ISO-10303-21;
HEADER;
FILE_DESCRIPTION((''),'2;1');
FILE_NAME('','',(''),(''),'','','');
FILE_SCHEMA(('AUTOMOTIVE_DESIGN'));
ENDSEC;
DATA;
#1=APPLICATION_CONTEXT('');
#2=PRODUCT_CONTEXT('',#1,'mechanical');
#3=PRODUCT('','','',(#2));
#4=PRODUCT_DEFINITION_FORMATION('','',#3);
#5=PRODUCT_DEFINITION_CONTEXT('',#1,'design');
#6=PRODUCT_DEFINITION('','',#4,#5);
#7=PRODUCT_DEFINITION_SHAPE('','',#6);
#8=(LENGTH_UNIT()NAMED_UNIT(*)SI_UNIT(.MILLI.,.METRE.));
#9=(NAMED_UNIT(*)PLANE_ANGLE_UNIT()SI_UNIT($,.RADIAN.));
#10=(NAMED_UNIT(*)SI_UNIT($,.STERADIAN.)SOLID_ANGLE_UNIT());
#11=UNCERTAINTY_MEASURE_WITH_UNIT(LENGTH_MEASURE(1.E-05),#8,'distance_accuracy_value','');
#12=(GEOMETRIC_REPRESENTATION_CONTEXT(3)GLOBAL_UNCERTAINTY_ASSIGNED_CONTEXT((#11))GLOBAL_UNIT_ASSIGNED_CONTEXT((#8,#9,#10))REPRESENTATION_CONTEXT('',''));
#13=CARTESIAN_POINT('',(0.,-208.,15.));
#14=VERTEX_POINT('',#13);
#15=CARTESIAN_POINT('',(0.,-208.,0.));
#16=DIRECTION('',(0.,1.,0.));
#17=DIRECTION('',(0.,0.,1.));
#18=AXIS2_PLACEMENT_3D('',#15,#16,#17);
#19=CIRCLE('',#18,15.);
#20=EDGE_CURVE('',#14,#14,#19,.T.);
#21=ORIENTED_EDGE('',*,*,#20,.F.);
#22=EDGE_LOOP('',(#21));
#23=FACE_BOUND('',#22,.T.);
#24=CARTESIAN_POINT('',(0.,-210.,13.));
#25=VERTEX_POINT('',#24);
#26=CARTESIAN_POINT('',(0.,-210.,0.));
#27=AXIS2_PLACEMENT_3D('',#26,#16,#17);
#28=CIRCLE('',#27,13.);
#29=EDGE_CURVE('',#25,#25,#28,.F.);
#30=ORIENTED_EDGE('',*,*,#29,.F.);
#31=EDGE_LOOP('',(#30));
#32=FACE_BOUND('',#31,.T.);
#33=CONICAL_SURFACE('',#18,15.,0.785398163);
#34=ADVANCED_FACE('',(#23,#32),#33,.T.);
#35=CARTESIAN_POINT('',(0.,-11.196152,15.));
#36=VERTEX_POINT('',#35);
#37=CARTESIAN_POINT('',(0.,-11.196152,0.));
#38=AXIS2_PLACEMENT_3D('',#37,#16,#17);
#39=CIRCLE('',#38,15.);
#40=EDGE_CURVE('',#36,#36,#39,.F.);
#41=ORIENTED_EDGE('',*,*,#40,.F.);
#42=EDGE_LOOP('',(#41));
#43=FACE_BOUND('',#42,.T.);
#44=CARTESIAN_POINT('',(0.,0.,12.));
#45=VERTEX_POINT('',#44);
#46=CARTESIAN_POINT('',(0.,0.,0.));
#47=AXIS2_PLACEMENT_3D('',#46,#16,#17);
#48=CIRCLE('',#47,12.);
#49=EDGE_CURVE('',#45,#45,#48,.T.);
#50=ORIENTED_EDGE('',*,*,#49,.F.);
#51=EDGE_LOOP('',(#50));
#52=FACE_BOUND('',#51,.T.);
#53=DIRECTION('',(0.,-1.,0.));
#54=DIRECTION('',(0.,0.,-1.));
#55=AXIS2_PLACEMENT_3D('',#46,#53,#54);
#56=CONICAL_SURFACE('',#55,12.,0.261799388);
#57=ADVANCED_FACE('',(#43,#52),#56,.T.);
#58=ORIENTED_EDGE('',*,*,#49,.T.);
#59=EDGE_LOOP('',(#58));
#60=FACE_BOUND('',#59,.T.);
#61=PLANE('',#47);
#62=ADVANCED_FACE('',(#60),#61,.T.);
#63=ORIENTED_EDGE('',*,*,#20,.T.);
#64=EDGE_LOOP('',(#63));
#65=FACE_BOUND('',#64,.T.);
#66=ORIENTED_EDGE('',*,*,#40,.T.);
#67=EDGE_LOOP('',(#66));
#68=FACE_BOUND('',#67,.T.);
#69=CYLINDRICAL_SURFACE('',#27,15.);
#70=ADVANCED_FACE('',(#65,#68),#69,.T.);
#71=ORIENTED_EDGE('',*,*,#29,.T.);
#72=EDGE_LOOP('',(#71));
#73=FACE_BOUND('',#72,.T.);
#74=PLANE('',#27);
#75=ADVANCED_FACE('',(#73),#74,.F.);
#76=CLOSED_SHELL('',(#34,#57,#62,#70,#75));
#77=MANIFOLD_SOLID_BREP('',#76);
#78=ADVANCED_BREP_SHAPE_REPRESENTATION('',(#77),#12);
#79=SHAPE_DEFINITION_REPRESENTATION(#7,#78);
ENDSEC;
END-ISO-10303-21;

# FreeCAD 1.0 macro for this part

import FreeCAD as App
import Part
import Sketcher


def edges_at(feature, points):
    """Names of the edges that pass closest to the given points."""
    edges = feature.Shape.Edges
    near = lambda p: min(range(len(edges)), key=lambda i: edges[i].distToShape(Part.Vertex(*p))[0])
    return sorted({f"Edge{near(p) + 1}" for p in points})

doc = App.newDocument("Part")
params = doc.addObject("Spreadsheet::Sheet", "Params")
for row, (alias, value) in enumerate([
    ("sketch1_diameter", "30 mm"),
    ("pad1_length", "210 mm"),
    ("chamfer_size", "2 mm"),
    ("chamfer2_size", "3 mm"),
    ("chamfer2_size2", "11.196152 mm"),
], start=1):
    params.set(f"A{row}", alias)
    params.set(f"B{row}", "=" + value)
    params.setAlias(f"B{row}", alias)

body = doc.addObject("PartDesign::Body", "Body")

# Sketch on XZ plane
sketch1 = body.newObject("Sketcher::SketchObject", "Sketch")
sketch1.AttachmentSupport = (doc.getObject("XZ_Plane"), [""])
sketch1.MapMode = "FlatFace"
sketch1.addGeometry(Part.Circle(App.Vector(0, 0, 0), App.Vector(0, 0, 1), 15), False)
sketch1.addConstraint(Sketcher.Constraint("Coincident", 0, 3, -1, 1))
sketch1.addConstraint(Sketcher.Constraint("Diameter", 0, 30.0))
sketch1.setExpression("Constraints[1]", "Params.sketch1_diameter")
pad1 = body.newObject("PartDesign::Pad", "Pad")
pad1.Profile = sketch1
pad1.setExpression("Length", "Params.pad1_length")
doc.recompute()

chamfer = body.newObject("PartDesign::Chamfer", "Chamfer")
chamfer.Base = (pad1, edges_at(pad1, [(0, -210, -15)]))
chamfer.setExpression("Size", "Params.chamfer_size")
doc.recompute()

chamfer2 = body.newObject("PartDesign::Chamfer", "Chamfer001")
chamfer2.Base = (chamfer, edges_at(chamfer, [(0, 0, -15)]))
chamfer2.ChamferType = "Two distances"
chamfer2.setExpression("Size", "Params.chamfer2_size")
chamfer2.setExpression("Size2", "Params.chamfer2_size2")
chamfer2.FlipDirection = True

doc.recompute()
